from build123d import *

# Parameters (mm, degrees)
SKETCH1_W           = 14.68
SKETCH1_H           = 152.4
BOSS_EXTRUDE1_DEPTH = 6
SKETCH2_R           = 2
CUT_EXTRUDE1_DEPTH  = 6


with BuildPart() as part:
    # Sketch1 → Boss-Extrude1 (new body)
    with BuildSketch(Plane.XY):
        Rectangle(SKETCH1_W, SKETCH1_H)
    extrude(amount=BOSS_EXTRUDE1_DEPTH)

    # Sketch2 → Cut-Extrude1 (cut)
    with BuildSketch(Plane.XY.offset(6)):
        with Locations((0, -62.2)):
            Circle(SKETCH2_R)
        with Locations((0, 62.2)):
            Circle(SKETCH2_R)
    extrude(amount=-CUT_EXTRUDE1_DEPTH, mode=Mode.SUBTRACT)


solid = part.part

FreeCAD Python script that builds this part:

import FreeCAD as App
import Part
import Sketcher
Q = App.Units.Quantity

doc = App.newDocument("Part")
body = doc.addObject("PartDesign::Body", "Body")

# Sketch on XY plane
sketch1 = doc.addObject("Sketcher::SketchObject", "Sketch")
body.addObject(sketch1)
sketch1.AttachmentSupport = (doc.XY_Plane, [""])
sketch1.MapMode = "FlatFace"
sketch1.addGeometry([
    Part.LineSegment(App.Vector(-7, 76, 0), App.Vector(-7, -76, 0)),
    Part.LineSegment(App.Vector(-7, -76, 0), App.Vector(7, -76, 0)),
    Part.LineSegment(App.Vector(7, -76, 0), App.Vector(7, 76, 0)),
    Part.LineSegment(App.Vector(7, 76, 0), App.Vector(-7, 76, 0)),
], False)
sketch1.addConstraint([
    Sketcher.Constraint("Coincident", 0, 2, 1, 1),
    Sketcher.Constraint("Coincident", 1, 2, 2, 1),
    Sketcher.Constraint("Coincident", 2, 2, 3, 1),
    Sketcher.Constraint("Coincident", 3, 2, 0, 1),
    Sketcher.Constraint("Vertical", 0),
    Sketcher.Constraint("Horizontal", 1),
    Sketcher.Constraint("Vertical", 2),
    Sketcher.Constraint("Horizontal", 3),
    Sketcher.Constraint("Symmetric", 0, 2, 2, 2, -1, 1),
    Sketcher.Constraint("DistanceY", 0, 2, 0, 1, Q("152.4 mm")),
    Sketcher.Constraint("DistanceX", 1, 1, 1, 2, Q("14.68 mm")),
])
pad1 = doc.addObject("PartDesign::Pad", "Pad")
body.addObject(pad1)
pad1.Profile = sketch1
pad1.Length = 6

# Sketch on XY plane
sketch2 = doc.addObject("Sketcher::SketchObject", "Sketch001")
body.addObject(sketch2)
sketch2.AttachmentSupport = (doc.XY_Plane, [""])
sketch2.MapMode = "FlatFace"
sketch2.AttachmentOffset = App.Placement(App.Vector(0, 0, 6), App.Rotation())
sketch2.addGeometry([
    Part.Circle(App.Vector(0, -62.2, 0), App.Vector(0, 0, 1), 2),
    Part.Circle(App.Vector(0, 62.2, 0), App.Vector(0, 0, 1), 2),
], False)
sketch2.addConstraint([
    Sketcher.Constraint("Equal", 0, 1),
    Sketcher.Constraint("Symmetric", 0, 3, 1, 3, -1, 1),
    Sketcher.Constraint("PointOnObject", 0, 3, -2),
    Sketcher.Constraint("Diameter", 0, Q("4 mm")),
    Sketcher.Constraint("DistanceY", 0, 3, -1, 1, Q("62.2 mm")),
])
pocket1 = doc.addObject("PartDesign::Pocket", "Pocket")
body.addObject(pocket1)
pocket1.Profile = sketch2
pocket1.Length = 6

doc.recompute()
